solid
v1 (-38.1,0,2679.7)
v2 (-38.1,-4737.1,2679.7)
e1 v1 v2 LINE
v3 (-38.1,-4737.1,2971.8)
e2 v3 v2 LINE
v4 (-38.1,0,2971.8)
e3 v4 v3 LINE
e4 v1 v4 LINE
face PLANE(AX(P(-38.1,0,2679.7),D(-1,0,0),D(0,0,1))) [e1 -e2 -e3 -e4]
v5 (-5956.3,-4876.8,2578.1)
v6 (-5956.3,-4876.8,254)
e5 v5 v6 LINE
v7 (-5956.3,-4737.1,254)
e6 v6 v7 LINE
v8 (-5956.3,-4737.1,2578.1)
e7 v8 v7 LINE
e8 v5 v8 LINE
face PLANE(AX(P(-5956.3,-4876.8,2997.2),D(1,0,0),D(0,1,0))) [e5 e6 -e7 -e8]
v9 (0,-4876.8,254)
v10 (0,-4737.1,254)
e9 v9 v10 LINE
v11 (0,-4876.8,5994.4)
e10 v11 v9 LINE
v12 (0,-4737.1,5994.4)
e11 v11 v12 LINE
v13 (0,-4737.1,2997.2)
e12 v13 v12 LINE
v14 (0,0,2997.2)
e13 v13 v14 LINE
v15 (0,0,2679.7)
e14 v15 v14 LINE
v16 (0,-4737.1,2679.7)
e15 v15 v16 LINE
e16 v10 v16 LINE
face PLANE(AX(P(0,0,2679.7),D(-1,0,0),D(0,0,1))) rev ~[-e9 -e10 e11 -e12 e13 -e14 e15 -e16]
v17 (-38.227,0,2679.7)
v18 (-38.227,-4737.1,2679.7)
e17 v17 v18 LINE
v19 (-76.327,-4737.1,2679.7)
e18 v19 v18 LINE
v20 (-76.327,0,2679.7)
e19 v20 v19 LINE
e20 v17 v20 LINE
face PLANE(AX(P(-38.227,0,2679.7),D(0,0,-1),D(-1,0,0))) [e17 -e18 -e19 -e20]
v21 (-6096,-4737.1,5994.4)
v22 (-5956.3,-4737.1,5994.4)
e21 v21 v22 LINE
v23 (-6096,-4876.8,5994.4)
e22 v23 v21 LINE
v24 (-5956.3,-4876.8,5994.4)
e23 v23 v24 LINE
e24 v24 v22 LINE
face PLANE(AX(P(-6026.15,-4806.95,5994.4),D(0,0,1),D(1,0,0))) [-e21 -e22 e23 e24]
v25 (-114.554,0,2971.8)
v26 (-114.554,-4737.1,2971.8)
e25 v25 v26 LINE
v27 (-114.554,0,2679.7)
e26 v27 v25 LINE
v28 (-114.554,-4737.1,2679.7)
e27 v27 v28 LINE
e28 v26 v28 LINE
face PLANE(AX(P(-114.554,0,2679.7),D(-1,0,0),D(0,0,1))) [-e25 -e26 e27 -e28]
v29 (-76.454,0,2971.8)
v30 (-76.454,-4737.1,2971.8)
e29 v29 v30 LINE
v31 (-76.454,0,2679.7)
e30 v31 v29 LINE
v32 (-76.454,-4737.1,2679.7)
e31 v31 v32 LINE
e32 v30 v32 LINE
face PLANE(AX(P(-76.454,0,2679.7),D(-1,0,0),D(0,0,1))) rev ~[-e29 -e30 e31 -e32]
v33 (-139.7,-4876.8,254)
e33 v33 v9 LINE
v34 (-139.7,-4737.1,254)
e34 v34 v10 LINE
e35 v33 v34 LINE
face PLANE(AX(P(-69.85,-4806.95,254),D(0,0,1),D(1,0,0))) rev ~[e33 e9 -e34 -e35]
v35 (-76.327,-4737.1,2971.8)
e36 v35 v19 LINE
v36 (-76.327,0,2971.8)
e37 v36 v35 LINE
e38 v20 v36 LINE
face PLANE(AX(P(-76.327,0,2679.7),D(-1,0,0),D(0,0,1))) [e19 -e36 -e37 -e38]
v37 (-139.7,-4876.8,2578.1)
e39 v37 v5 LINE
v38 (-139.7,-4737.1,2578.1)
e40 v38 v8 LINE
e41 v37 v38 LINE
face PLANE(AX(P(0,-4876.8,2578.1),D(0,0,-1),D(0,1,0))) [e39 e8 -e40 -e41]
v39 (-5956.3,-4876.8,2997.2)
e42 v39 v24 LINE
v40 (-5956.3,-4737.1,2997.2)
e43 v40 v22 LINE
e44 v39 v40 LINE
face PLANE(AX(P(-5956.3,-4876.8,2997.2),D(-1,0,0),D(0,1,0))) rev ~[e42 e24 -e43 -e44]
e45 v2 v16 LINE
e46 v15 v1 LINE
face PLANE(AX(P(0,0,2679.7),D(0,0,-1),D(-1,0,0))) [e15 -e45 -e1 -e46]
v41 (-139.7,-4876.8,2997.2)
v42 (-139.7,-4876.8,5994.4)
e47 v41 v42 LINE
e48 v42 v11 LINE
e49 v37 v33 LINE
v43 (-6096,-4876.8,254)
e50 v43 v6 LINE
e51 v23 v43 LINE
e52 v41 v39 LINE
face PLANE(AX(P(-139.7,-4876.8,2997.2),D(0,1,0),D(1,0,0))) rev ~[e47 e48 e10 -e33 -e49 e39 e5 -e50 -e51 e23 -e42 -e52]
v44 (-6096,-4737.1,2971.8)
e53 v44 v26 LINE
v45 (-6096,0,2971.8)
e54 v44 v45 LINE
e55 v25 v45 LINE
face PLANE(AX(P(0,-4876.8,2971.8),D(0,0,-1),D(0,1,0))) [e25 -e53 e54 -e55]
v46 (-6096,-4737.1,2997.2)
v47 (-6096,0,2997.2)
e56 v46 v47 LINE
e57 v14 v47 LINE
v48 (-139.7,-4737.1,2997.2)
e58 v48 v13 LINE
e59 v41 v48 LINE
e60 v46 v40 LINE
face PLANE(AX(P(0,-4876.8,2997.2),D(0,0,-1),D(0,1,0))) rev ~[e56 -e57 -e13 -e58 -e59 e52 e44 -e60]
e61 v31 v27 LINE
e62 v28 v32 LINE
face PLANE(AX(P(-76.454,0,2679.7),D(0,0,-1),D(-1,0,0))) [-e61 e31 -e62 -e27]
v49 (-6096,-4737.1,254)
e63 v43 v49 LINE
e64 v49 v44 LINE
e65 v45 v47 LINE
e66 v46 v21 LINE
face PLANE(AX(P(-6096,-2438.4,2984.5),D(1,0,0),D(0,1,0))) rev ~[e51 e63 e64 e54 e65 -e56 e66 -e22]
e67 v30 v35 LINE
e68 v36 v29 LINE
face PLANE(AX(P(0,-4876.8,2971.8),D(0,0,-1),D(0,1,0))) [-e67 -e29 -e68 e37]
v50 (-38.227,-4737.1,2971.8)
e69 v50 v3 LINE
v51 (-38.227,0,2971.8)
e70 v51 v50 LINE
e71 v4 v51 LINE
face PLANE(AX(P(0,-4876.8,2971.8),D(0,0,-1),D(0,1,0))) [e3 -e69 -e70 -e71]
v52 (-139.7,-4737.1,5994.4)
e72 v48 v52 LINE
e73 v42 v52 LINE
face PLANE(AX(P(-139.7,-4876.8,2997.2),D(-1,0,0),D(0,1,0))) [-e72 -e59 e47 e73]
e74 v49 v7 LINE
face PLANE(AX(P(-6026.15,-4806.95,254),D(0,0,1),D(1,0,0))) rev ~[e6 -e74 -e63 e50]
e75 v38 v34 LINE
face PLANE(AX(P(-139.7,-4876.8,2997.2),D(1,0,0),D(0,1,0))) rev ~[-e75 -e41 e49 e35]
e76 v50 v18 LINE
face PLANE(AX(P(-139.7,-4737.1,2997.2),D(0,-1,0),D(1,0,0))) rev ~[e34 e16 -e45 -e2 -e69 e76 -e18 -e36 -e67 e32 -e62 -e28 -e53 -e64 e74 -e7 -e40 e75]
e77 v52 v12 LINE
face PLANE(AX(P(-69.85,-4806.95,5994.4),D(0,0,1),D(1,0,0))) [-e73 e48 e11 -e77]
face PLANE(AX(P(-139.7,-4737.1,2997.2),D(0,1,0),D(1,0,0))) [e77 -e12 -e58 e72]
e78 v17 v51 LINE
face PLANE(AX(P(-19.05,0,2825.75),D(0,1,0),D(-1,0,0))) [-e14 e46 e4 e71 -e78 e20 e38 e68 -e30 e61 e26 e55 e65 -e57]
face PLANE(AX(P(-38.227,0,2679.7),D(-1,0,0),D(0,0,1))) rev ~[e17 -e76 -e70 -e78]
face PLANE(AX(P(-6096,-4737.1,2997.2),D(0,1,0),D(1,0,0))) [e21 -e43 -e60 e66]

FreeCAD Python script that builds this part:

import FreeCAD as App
import Part
import Sketcher
from FreeCAD import Vector
Q = App.Units.Quantity

doc = App.newDocument("Part")
params = doc.addObject("Spreadsheet::Sheet", "Params")
for row, (alias, value) in enumerate([
    ("sketch1_width", "192 in"),
    ("sketch1_height", "1 in"),
    ("pad1_length", "240 in"),
    ("sketch2_width", "5.5 in"),
    ("pad2_length", "118 in"),
    ("pad2_length2", "108 in"),
    ("sketch3_width", "5.5 in"),
    ("sketch3_height", "15.5 in"),
    ("pad3_length", "240 in"),
    ("sketch4_width", "1.5 in"),
    ("sketch4_height", "11.5 in"),
    ("pad4_length", "192 in"),
], start=1):
    params.set(f"A{row}", alias)
    params.set(f"B{row}", "=" + value)
    params.setAlias(f"B{row}", alias)

body = doc.addObject("PartDesign::Body", "Body")

# Sketch on YZ plane
sketch1 = body.newObject("Sketcher::SketchObject", "Sketch")
sketch1.AttachmentSupport = (doc.getObject("YZ_Plane"), [""])
sketch1.MapMode = "FlatFace"
sketch1.addGeometry([
    Part.LineSegment(Vector(-4876.8, 2997.2, 0), Vector(-4876.8, 2971.8, 0)),
    Part.LineSegment(Vector(-4876.8, 2971.8, 0), Vector(0, 2971.8, 0)),
    Part.LineSegment(Vector(0, 2971.8, 0), Vector(0, 2997.2, 0)),
    Part.LineSegment(Vector(0, 2997.2, 0), Vector(-4876.8, 2997.2, 0)),
], False)
sketch1.addConstraint([
    Sketcher.Constraint("Coincident", 0, 2, 1, 1),
    Sketcher.Constraint("Coincident", 1, 2, 2, 1),
    Sketcher.Constraint("Coincident", 2, 2, 3, 1),
    Sketcher.Constraint("Coincident", 3, 2, 0, 1),
    Sketcher.Constraint("Vertical", 0),
    Sketcher.Constraint("Horizontal", 1),
    Sketcher.Constraint("Vertical", 2),
    Sketcher.Constraint("Horizontal", 3),
    Sketcher.Constraint("PointOnObject", 1, 2, -2),
    Sketcher.Constraint("DistanceX", 1, 1, 1, 2, Q("192 in")),
    Sketcher.Constraint("DistanceY", 0, 2, 0, 1, Q("1 in")),
    Sketcher.Constraint("DistanceY", -1, 1, 0, 2, Q("117 in")),
])
sketch1.setExpression("Constraints[9]", "Params.sketch1_width")
sketch1.setExpression("Constraints[10]", "Params.sketch1_height")
pad1 = body.newObject("PartDesign::Pad", "Pad")
pad1.Profile = sketch1
pad1.setExpression("Length", "Params.pad1_length")
pad1.Reversed = True

# Sketch on XY plane
sketch2 = body.newObject("Sketcher::SketchObject", "Sketch001")
sketch2.AttachmentSupport = (doc.getObject("XY_Plane"), [""])
sketch2.MapMode = "FlatFace"
sketch2.AttachmentOffset = App.Placement(Vector(0, 0, 118 * 25.4), App.Rotation())
sketch2.addGeometry([
    Part.LineSegment(Vector(-139.7, -4737.1, 0), Vector(-139.7, -4876.8, 0)),  # 0
    Part.LineSegment(Vector(-139.7, -4876.8, 0), Vector(0, -4876.8, 0)),  # 1
    Part.LineSegment(Vector(0, -4876.8, 0), Vector(0, -4737.1, 0)),  # 2
    Part.LineSegment(Vector(0, -4737.1, 0), Vector(-139.7, -4737.1, 0)),  # 3
    Part.LineSegment(Vector(-6096, -4737.1, 0), Vector(-6096, -4876.8, 0)),  # 4
    Part.LineSegment(Vector(-6096, -4876.8, 0), Vector(-5956.3, -4876.8, 0)),  # 5
    Part.LineSegment(Vector(-5956.3, -4876.8, 0), Vector(-5956.3, -4737.1, 0)),  # 6
    Part.LineSegment(Vector(-5956.3, -4737.1, 0), Vector(-6096, -4737.1, 0)),  # 7
], False)
sketch2.addConstraint([
    Sketcher.Constraint("Coincident", 0, 2, 1, 1),
    Sketcher.Constraint("Coincident", 1, 2, 2, 1),
    Sketcher.Constraint("Coincident", 2, 2, 3, 1),
    Sketcher.Constraint("Coincident", 3, 2, 0, 1),
    Sketcher.Constraint("Coincident", 4, 2, 5, 1),
    Sketcher.Constraint("Coincident", 5, 2, 6, 1),
    Sketcher.Constraint("Coincident", 6, 2, 7, 1),
    Sketcher.Constraint("Coincident", 7, 2, 4, 1),
    Sketcher.Constraint("Vertical", 0),
    Sketcher.Constraint("Horizontal", 1),
    Sketcher.Constraint("Vertical", 2),
    Sketcher.Constraint("Horizontal", 3),
    Sketcher.Constraint("Vertical", 4),
    Sketcher.Constraint("Horizontal", 5),
    Sketcher.Constraint("Vertical", 6),
    Sketcher.Constraint("Horizontal", 7),
    Sketcher.Constraint("PointOnObject", 1, 2, -2),
    Sketcher.Constraint("Horizontal", 1, 2, 4, 2),
    Sketcher.Constraint("Horizontal", 3, 2, 6, 2),
    Sketcher.Constraint("Equal", 3, 5),
    Sketcher.Constraint("Equal", 7, 0),
    Sketcher.Constraint("DistanceX", 1, 1, 1, 2, Q("5.5 in")),
    Sketcher.Constraint("DistanceY", 0, 2, -1, 1, Q("192 in")),
    Sketcher.Constraint("DistanceX", 4, 2, -1, 1, Q("240 in")),
])
sketch2.setExpression("Constraints[21]", "Params.sketch2_width")
pad2 = body.newObject("PartDesign::Pad", "Pad001")
pad2.Profile = sketch2
pad2.Type = "TwoLengths"
pad2.setExpression("Length", "Params.pad2_length")
pad2.setExpression("Length2", "Params.pad2_length2")

# Sketch on YZ plane
sketch3 = body.newObject("Sketcher::SketchObject", "Sketch002")
sketch3.AttachmentSupport = (doc.getObject("YZ_Plane"), [""])
sketch3.MapMode = "FlatFace"
sketch3.addGeometry([
    Part.LineSegment(Vector(-4876.8, 2971.8, 0), Vector(-4876.8, 2578.1, 0)),
    Part.LineSegment(Vector(-4876.8, 2578.1, 0), Vector(-4737.1, 2578.1, 0)),
    Part.LineSegment(Vector(-4737.1, 2578.1, 0), Vector(-4737.1, 2971.8, 0)),
    Part.LineSegment(Vector(-4737.1, 2971.8, 0), Vector(-4876.8, 2971.8, 0)),
], False)
sketch3.addConstraint([
    Sketcher.Constraint("Coincident", 0, 2, 1, 1),
    Sketcher.Constraint("Coincident", 1, 2, 2, 1),
    Sketcher.Constraint("Coincident", 2, 2, 3, 1),
    Sketcher.Constraint("Coincident", 3, 2, 0, 1),
    Sketcher.Constraint("Vertical", 0),
    Sketcher.Constraint("Horizontal", 1),
    Sketcher.Constraint("Vertical", 2),
    Sketcher.Constraint("Horizontal", 3),
    Sketcher.Constraint("DistanceX", 1, 1, 1, 2, Q("5.5 in")),
    Sketcher.Constraint("DistanceY", 0, 2, 0, 1, Q("15.5 in")),
    Sketcher.Constraint("DistanceX", 0, 2, -1, 1, Q("192 in")),
    Sketcher.Constraint("DistanceY", -1, 1, 2, 2, Q("117 in")),
])
sketch3.setExpression("Constraints[8]", "Params.sketch3_width")
sketch3.setExpression("Constraints[9]", "Params.sketch3_height")
pad3 = body.newObject("PartDesign::Pad", "Pad002")
pad3.Profile = sketch3
pad3.setExpression("Length", "Params.pad3_length")
pad3.Reversed = True

# Sketch on XZ plane
sketch4 = body.newObject("Sketcher::SketchObject", "Sketch003")
sketch4.AttachmentSupport = (doc.getObject("XZ_Plane"), [""])
sketch4.MapMode = "FlatFace"
sketch4.addGeometry([
    Part.LineSegment(Vector(0, 2971.8, 0), Vector(0, 2679.7, 0)),  # 0
    Part.LineSegment(Vector(0, 2679.7, 0), Vector(-38.1, 2679.7, 0)),  # 1
    Part.LineSegment(Vector(-38.1, 2679.7, 0), Vector(-38.1, 2971.8, 0)),  # 2
    Part.LineSegment(Vector(-38.1, 2971.8, 0), Vector(0, 2971.8, 0)),  # 3
    Part.LineSegment(Vector(-38.227, 2971.8, 0), Vector(-38.227, 2679.7, 0)),  # 4
    Part.LineSegment(Vector(-38.227, 2679.7, 0), Vector(-76.327, 2679.7, 0)),  # 5
    Part.LineSegment(Vector(-76.327, 2679.7, 0), Vector(-76.327, 2971.8, 0)),  # 6
    Part.LineSegment(Vector(-76.327, 2971.8, 0), Vector(-38.227, 2971.8, 0)),  # 7
    Part.LineSegment(Vector(-76.454, 2971.8, 0), Vector(-76.454, 2679.7, 0)),  # 8
    Part.LineSegment(Vector(-76.454, 2679.7, 0), Vector(-114.554, 2679.7, 0)),  # 9
    Part.LineSegment(Vector(-114.554, 2679.7, 0), Vector(-114.554, 2971.8, 0)),  # 10
    Part.LineSegment(Vector(-114.554, 2971.8, 0), Vector(-76.454, 2971.8, 0)),  # 11
], False)
sketch4.addConstraint([
    Sketcher.Constraint("Coincident", 0, 2, 1, 1),
    Sketcher.Constraint("Coincident", 1, 2, 2, 1),
    Sketcher.Constraint("Coincident", 2, 2, 3, 1),
    Sketcher.Constraint("Coincident", 3, 2, 0, 1),
    Sketcher.Constraint("Coincident", 4, 2, 5, 1),
    Sketcher.Constraint("Coincident", 5, 2, 6, 1),
    Sketcher.Constraint("Coincident", 6, 2, 7, 1),
    Sketcher.Constraint("Coincident", 7, 2, 4, 1),
    Sketcher.Constraint("Coincident", 8, 2, 9, 1),
    Sketcher.Constraint("Coincident", 9, 2, 10, 1),
    Sketcher.Constraint("Coincident", 10, 2, 11, 1),
    Sketcher.Constraint("Coincident", 11, 2, 8, 1),
    Sketcher.Constraint("Vertical", 0),
    Sketcher.Constraint("Horizontal", 1),
    Sketcher.Constraint("Vertical", 2),
    Sketcher.Constraint("Horizontal", 3),
    Sketcher.Constraint("Vertical", 4),
    Sketcher.Constraint("Horizontal", 5),
    Sketcher.Constraint("Vertical", 6),
    Sketcher.Constraint("Horizontal", 7),
    Sketcher.Constraint("Vertical", 8),
    Sketcher.Constraint("Horizontal", 9),
    Sketcher.Constraint("Vertical", 10),
    Sketcher.Constraint("Horizontal", 11),
    Sketcher.Constraint("PointOnObject", 0, 2, -2),
    Sketcher.Constraint("Horizontal", 1, 2, 4, 2),
    Sketcher.Constraint("Horizontal", 3, 2, 6, 2),
    Sketcher.Constraint("Horizontal", 5, 2, 8, 2),
    Sketcher.Constraint("Horizontal", 7, 2, 10, 2),
    Sketcher.Constraint("Equal", 3, 5),
    Sketcher.Constraint("Equal", 7, 9),
    Sketcher.Constraint("DistanceX", 1, 2, 1, 1, Q("1.5 in")),
    Sketcher.Constraint("DistanceY", 0, 2, 0, 1, Q("11.5 in")),
    Sketcher.Constraint("DistanceY", -1, 1, 2, 2, Q("117 in")),
    Sketcher.Constraint("DistanceX", 8, 2, -1, 1, Q("3.01 in")),
    Sketcher.Constraint("DistanceX", 4, 2, -1, 1, Q("1.505 in")),
])
sketch4.setExpression("Constraints[31]", "Params.sketch4_width")
sketch4.setExpression("Constraints[32]", "Params.sketch4_height")
pad4 = body.newObject("PartDesign::Pad", "Pad003")
pad4.Profile = sketch4
pad4.setExpression("Length", "Params.pad4_length")

doc.recompute()
